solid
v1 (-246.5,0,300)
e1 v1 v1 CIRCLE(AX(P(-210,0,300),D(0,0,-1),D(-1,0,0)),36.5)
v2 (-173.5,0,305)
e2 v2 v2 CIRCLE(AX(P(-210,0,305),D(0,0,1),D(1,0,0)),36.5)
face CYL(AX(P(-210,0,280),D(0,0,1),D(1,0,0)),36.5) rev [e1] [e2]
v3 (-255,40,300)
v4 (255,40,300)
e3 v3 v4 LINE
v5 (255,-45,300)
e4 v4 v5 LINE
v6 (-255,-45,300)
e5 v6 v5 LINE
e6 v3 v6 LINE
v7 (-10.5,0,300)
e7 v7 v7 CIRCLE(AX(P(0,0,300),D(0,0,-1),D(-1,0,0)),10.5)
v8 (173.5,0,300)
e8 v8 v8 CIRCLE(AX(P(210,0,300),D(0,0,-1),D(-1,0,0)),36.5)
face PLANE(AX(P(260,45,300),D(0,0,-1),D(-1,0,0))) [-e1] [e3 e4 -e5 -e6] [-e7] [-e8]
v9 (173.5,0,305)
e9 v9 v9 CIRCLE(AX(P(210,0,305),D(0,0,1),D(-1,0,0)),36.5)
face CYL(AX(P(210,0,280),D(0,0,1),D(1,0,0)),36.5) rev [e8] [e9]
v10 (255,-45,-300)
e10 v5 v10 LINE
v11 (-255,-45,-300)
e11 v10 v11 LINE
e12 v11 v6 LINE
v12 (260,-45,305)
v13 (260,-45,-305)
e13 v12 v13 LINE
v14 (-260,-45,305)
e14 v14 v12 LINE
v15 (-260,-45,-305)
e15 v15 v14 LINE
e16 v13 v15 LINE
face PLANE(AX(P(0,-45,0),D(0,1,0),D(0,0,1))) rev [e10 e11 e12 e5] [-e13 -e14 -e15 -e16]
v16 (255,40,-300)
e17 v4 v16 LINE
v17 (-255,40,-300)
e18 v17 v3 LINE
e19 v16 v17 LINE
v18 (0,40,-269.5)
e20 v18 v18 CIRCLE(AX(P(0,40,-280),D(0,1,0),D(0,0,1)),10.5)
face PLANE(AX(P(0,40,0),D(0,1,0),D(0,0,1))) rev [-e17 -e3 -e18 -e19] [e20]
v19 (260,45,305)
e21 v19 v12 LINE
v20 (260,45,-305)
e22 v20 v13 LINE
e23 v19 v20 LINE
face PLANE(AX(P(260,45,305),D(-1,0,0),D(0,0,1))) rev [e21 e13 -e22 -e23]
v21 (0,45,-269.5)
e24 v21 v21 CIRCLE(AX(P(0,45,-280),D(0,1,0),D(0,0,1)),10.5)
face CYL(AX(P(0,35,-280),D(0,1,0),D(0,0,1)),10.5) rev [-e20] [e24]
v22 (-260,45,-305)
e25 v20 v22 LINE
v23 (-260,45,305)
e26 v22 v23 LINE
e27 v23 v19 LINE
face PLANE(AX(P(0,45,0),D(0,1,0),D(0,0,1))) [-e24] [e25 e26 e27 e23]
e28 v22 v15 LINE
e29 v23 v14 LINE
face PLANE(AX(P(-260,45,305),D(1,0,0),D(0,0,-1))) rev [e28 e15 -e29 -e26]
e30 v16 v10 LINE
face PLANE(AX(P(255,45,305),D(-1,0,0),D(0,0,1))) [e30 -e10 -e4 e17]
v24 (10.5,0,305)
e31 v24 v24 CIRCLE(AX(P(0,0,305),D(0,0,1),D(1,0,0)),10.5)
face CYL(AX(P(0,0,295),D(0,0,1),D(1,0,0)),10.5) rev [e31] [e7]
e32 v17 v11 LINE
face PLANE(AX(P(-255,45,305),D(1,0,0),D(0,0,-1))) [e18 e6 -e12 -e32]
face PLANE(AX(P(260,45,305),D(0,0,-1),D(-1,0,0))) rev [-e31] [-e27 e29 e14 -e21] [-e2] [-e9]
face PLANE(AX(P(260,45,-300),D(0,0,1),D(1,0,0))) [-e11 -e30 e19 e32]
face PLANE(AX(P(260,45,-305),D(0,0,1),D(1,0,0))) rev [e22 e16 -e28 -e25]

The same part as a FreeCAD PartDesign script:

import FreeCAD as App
import Part
import Sketcher
Q = App.Units.Quantity


def faces_at(feature, points):
    """Names of the faces that lie closest to the given points."""
    faces = feature.Shape.Faces
    near = lambda p: min(range(len(faces)), key=lambda i: faces[i].distToShape(Part.Vertex(*p))[0])
    return sorted({f"Face{near(p) + 1}" for p in points})

doc = App.newDocument("Part")
params = doc.addObject("Spreadsheet::Sheet", "Params")
for row, (alias, value) in enumerate([
    ("sketch1_width", "520 mm"),
    ("sketch1_height", "610 mm"),
    ("pad1_length", "90 mm"),
    ("thickness_wall", "5 mm"),
    ("sketch2_diameter", "21 mm"),
    ("pocket1_length", "10 mm"),
    ("sketch3_diameter", "21 mm"),
    ("pocket2_length", "10 mm"),
    ("sketch4_diameter", "73 mm"),
    ("pocket3_length", "25 mm"),
], start=1):
    params.set(f"A{row}", alias)
    params.set(f"B{row}", "=" + value)
    params.setAlias(f"B{row}", alias)

body = doc.addObject("PartDesign::Body", "Body")

# Sketch on XZ plane
sketch1 = body.newObject("Sketcher::SketchObject", "Sketch")
sketch1.AttachmentSupport = (doc.getObject("XZ_Plane"), [""])
sketch1.MapMode = "FlatFace"
sketch1.addGeometry(Part.LineSegment(App.Vector(-260, -305, 0), App.Vector(-260, 305, 0)), False)
sketch1.addGeometry(Part.LineSegment(App.Vector(-260, 305, 0), App.Vector(260, 305, 0)), False)
sketch1.addGeometry(Part.LineSegment(App.Vector(260, 305, 0), App.Vector(260, -305, 0)), False)
sketch1.addGeometry(Part.LineSegment(App.Vector(260, -305, 0), App.Vector(-260, -305, 0)), False)
sketch1.addConstraint(Sketcher.Constraint("Coincident", 0, 2, 1, 1))
sketch1.addConstraint(Sketcher.Constraint("Coincident", 1, 2, 2, 1))
sketch1.addConstraint(Sketcher.Constraint("Coincident", 2, 2, 3, 1))
sketch1.addConstraint(Sketcher.Constraint("Coincident", 3, 2, 0, 1))
sketch1.addConstraint(Sketcher.Constraint("Vertical", 0))
sketch1.addConstraint(Sketcher.Constraint("Horizontal", 1))
sketch1.addConstraint(Sketcher.Constraint("Vertical", 2))
sketch1.addConstraint(Sketcher.Constraint("Horizontal", 3))
sketch1.addConstraint(Sketcher.Constraint("Symmetric", 0, 2, 2, 2, -1, 1))
sketch1.addConstraint(Sketcher.Constraint("DistanceX", 1, 1, 1, 2, Q("520 mm")))
sketch1.addConstraint(Sketcher.Constraint("DistanceY", 0, 1, 0, 2, Q("610 mm")))
sketch1.setExpression("Constraints[9]", "Params.sketch1_width")
sketch1.setExpression("Constraints[10]", "Params.sketch1_height")
pad1 = body.newObject("PartDesign::Pad", "Pad")
pad1.Profile = sketch1
pad1.setExpression("Length", "Params.pad1_length")
pad1.Midplane = True
doc.recompute()

thickness = body.newObject("PartDesign::Thickness", "Thickness")
thickness.Base = (pad1, faces_at(pad1, [(0, -45, 0)]))
thickness.setExpression("Value", "Params.thickness_wall")
thickness.Reversed = True
thickness.Join = "Intersection"

# Sketch on XZ plane
sketch2 = body.newObject("Sketcher::SketchObject", "Sketch001")
sketch2.AttachmentSupport = (doc.getObject("XZ_Plane"), [""])
sketch2.MapMode = "FlatFace"
sketch2.AttachmentOffset = App.Placement(App.Vector(0, 0, -45), App.Rotation())
sketch2.addGeometry(Part.Circle(App.Vector(0, -280, 0), App.Vector(0, 0, 1), 10.5), False)
sketch2.addConstraint(Sketcher.Constraint("PointOnObject", 0, 3, -2))
sketch2.addConstraint(Sketcher.Constraint("Diameter", 0, Q("21 mm")))
sketch2.addConstraint(Sketcher.Constraint("DistanceY", 0, 3, -1, 1, Q("280 mm")))
sketch2.setExpression("Constraints[1]", "Params.sketch2_diameter")
pocket1 = body.newObject("PartDesign::Pocket", "Pocket")
pocket1.Profile = sketch2
pocket1.setExpression("Length", "Params.pocket1_length")
pocket1.Reversed = True

# Sketch on XY plane
sketch3 = body.newObject("Sketcher::SketchObject", "Sketch002")
sketch3.AttachmentSupport = (doc.getObject("XY_Plane"), [""])
sketch3.MapMode = "FlatFace"
sketch3.AttachmentOffset = App.Placement(App.Vector(0, 0, 305), App.Rotation())
sketch3.addGeometry(Part.Circle(App.Vector(0, 0, 0), App.Vector(0, 0, 1), 10.5), False)
sketch3.addConstraint(Sketcher.Constraint("Coincident", 0, 3, -1, 1))
sketch3.addConstraint(Sketcher.Constraint("Diameter", 0, Q("21 mm")))
sketch3.setExpression("Constraints[1]", "Params.sketch3_diameter")
pocket2 = body.newObject("PartDesign::Pocket", "Pocket001")
pocket2.Profile = sketch3
pocket2.setExpression("Length", "Params.pocket2_length")

# Sketch on XY plane
sketch4 = body.newObject("Sketcher::SketchObject", "Sketch003")
sketch4.AttachmentSupport = (doc.getObject("XY_Plane"), [""])
sketch4.MapMode = "FlatFace"
sketch4.AttachmentOffset = App.Placement(App.Vector(0, 0, 305), App.Rotation())
sketch4.addGeometry(Part.Circle(App.Vector(-210, 0, 0), App.Vector(0, 0, 1), 36.5), False)
sketch4.addGeometry(Part.Circle(App.Vector(210, 0, 0), App.Vector(0, 0, 1), 36.5), False)
sketch4.addConstraint(Sketcher.Constraint("Equal", 0, 1))
sketch4.addConstraint(Sketcher.Constraint("Symmetric", 0, 3, 1, 3, -1, 1))
sketch4.addConstraint(Sketcher.Constraint("PointOnObject", 0, 3, -1))
sketch4.addConstraint(Sketcher.Constraint("Diameter", 0, Q("73 mm")))
sketch4.addConstraint(Sketcher.Constraint("DistanceX", 0, 3, -1, 1, Q("210 mm")))
sketch4.setExpression("Constraints[3]", "Params.sketch4_diameter")
pocket3 = body.newObject("PartDesign::Pocket", "Pocket002")
pocket3.Profile = sketch4
pocket3.setExpression("Length", "Params.pocket3_length")

doc.recompute()
